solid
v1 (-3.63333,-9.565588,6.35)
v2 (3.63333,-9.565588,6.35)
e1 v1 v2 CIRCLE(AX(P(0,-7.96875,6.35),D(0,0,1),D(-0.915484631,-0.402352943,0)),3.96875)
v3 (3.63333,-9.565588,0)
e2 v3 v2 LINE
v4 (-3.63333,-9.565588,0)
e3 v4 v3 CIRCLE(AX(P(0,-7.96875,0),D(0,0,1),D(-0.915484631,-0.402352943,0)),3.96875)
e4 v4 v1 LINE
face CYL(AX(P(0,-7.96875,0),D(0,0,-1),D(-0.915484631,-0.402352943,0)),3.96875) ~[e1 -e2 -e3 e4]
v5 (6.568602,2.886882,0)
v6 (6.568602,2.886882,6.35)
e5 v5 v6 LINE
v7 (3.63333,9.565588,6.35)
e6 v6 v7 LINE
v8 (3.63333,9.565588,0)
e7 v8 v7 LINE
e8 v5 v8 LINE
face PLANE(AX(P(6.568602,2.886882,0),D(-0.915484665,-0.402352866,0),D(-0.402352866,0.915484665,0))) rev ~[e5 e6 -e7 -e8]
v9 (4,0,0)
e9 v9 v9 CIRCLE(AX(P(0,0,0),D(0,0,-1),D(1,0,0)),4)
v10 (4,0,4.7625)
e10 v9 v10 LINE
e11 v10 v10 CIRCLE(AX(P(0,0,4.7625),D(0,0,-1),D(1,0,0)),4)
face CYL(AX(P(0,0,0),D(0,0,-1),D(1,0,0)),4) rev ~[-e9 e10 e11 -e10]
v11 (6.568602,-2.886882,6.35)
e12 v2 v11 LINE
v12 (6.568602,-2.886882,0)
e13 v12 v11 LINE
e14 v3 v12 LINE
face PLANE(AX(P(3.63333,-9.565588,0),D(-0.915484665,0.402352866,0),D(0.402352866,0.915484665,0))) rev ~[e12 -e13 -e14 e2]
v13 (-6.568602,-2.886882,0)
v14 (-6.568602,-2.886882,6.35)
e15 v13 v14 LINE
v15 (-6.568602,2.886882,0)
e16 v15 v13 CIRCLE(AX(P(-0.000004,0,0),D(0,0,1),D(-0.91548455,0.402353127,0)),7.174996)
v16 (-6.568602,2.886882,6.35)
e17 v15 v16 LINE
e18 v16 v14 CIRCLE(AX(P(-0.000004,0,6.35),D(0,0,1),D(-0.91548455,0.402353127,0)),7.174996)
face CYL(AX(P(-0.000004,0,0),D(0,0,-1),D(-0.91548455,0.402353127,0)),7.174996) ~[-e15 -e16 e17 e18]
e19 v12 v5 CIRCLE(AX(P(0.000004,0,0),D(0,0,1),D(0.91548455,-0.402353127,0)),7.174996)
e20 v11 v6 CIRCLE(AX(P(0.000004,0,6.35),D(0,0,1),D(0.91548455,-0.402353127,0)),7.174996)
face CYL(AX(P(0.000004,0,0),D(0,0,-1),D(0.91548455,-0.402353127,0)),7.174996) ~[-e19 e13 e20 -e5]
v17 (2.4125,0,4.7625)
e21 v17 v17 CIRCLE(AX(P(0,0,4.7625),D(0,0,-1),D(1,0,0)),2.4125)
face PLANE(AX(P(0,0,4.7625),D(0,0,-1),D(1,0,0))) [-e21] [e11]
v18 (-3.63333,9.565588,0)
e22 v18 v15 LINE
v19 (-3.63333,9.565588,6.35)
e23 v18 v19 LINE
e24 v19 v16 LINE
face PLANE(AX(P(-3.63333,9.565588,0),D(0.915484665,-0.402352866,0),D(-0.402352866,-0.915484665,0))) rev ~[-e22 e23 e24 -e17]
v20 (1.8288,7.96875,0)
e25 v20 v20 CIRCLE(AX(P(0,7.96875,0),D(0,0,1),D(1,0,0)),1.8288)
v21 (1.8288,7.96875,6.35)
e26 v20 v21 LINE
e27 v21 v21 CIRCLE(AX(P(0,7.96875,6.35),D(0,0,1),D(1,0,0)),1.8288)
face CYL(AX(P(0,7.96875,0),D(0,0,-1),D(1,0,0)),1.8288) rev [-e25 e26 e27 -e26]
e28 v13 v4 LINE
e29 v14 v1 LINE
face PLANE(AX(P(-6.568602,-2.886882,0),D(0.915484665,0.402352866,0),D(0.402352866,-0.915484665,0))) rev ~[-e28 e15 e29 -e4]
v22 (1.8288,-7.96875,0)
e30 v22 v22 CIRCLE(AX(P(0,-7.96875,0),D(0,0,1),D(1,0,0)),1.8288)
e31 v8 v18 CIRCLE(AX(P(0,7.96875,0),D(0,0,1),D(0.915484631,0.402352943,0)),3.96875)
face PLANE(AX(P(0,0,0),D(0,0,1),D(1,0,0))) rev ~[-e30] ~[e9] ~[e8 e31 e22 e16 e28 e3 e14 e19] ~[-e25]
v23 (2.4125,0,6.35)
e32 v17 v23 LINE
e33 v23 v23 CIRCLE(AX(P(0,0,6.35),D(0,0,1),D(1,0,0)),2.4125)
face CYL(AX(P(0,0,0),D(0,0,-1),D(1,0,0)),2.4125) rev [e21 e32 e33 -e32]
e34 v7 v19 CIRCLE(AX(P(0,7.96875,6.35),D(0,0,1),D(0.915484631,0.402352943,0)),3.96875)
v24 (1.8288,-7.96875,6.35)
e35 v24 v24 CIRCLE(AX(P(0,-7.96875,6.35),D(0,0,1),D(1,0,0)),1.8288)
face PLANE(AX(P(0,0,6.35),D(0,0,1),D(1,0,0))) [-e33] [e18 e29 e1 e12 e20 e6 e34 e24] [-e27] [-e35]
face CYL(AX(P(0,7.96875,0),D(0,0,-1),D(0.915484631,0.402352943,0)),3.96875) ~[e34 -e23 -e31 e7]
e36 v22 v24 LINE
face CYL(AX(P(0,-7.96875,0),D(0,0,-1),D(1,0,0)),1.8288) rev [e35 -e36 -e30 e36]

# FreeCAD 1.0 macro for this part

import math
import FreeCAD as App
import Part
import Sketcher
from FreeCAD import Vector
Q = App.Units.Quantity

doc = App.newDocument("Part")
params = doc.addObject("Spreadsheet::Sheet", "Params")
for row, (alias, value) in enumerate([
    ("sketch1_diameter", "0.144 in"),
    ("sketch1_radius", "0.15625 in"),
    ("pad1_length", "0.25 in"),
    ("pocket1_length", "0.1875 in"),
], start=1):
    params.set(f"A{row}", alias)
    params.set(f"B{row}", "=" + value)
    params.setAlias(f"B{row}", alias)

body = doc.addObject("PartDesign::Body", "Body")

# Sketch on XY plane
sketch1 = body.newObject("Sketcher::SketchObject", "Sketch")
sketch1.AttachmentSupport = (doc.getObject("XY_Plane"), [""])
sketch1.MapMode = "FlatFace"
sketch1.addGeometry(Part.LineSegment(Vector(6.6, 2.9, 0), Vector(3.6, 9.6, 0)), False)
sketch1.addGeometry(Part.ArcOfCircle(Part.Circle(Vector(0, 8, 0), Vector(0, 0, 1), 4), math.radians(24), math.radians(156)), False)
sketch1.addGeometry(Part.LineSegment(Vector(-3.6, 9.6, 0), Vector(-6.6, 2.9, 0)), False)
sketch1.addGeometry(Part.ArcOfCircle(Part.Circle(Vector(0, 0, 0), Vector(0, 0, 1), 7.2), math.radians(156), math.radians(204)), False)
sketch1.addGeometry(Part.LineSegment(Vector(-6.6, -2.9, 0), Vector(-3.6, -9.6, 0)), False)
sketch1.addGeometry(Part.ArcOfCircle(Part.Circle(Vector(0, -8, 0), Vector(0, 0, 1), 4), math.radians(-156), math.radians(-24)), False)
sketch1.addGeometry(Part.LineSegment(Vector(3.6, -9.6, 0), Vector(6.6, -2.9, 0)), False)
sketch1.addGeometry(Part.ArcOfCircle(Part.Circle(Vector(0, 0, 0), Vector(0, 0, 1), 7.2), math.radians(-24), math.radians(24)), False)
sketch1.addGeometry(Part.Circle(Vector(0, -8, 0), Vector(0, 0, 1), 1.8), False)
sketch1.addGeometry(Part.Circle(Vector(0, 0, 0), Vector(0, 0, 1), 2.4), False)
sketch1.addGeometry(Part.Circle(Vector(0, 8, 0), Vector(0, 0, 1), 1.8), False)
sketch1.addConstraint(Sketcher.Constraint("Tangent", 0, 2, 1, 1))
sketch1.addConstraint(Sketcher.Constraint("Tangent", 1, 2, 2, 1))
sketch1.addConstraint(Sketcher.Constraint("Tangent", 2, 2, 3, 1))
sketch1.addConstraint(Sketcher.Constraint("Tangent", 3, 2, 4, 1))
sketch1.addConstraint(Sketcher.Constraint("Tangent", 4, 2, 5, 1))
sketch1.addConstraint(Sketcher.Constraint("Tangent", 5, 2, 6, 1))
sketch1.addConstraint(Sketcher.Constraint("Tangent", 6, 2, 7, 1))
sketch1.addConstraint(Sketcher.Constraint("Tangent", 7, 2, 0, 1))
sketch1.addConstraint(Sketcher.Constraint("Coincident", 3, 3, -1, 1))
sketch1.addConstraint(Sketcher.Constraint("Coincident", 7, 3, -1, 1))
sketch1.addConstraint(Sketcher.Constraint("Coincident", 9, 3, -1, 1))
sketch1.addConstraint(Sketcher.Constraint("Coincident", 8, 3, 5, 3))
sketch1.addConstraint(Sketcher.Constraint("Coincident", 10, 3, 1, 3))
sketch1.addConstraint(Sketcher.Constraint("Equal", 1, 5))
sketch1.addConstraint(Sketcher.Constraint("Equal", 3, 7))
sketch1.addConstraint(Sketcher.Constraint("Equal", 8, 10))
sketch1.addConstraint(Sketcher.Constraint("Symmetric", 1, 3, 5, 3, -1, 1))
sketch1.addConstraint(Sketcher.Constraint("PointOnObject", 1, 3, -2))
sketch1.addConstraint(Sketcher.Constraint("Diameter", 8, Q("0.144 in")))
sketch1.addConstraint(Sketcher.Constraint("Radius", 1, Q("0.15625 in")))
sketch1.addConstraint(Sketcher.Constraint("Diameter", 9, Q("4.825 mm")))
sketch1.addConstraint(Sketcher.Constraint("Radius", 3, Q("7.174996 mm")))
sketch1.addConstraint(Sketcher.Constraint("DistanceX", 3, 2, -1, 1, Q("6.568602 mm")))
sketch1.setExpression("Constraints[18]", "Params.sketch1_diameter")
sketch1.setExpression("Constraints[19]", "Params.sketch1_radius")
pad1 = body.newObject("PartDesign::Pad", "Pad")
pad1.Profile = sketch1
pad1.setExpression("Length", "Params.pad1_length")

# Sketch on XY plane
sketch2 = body.newObject("Sketcher::SketchObject", "Sketch001")
sketch2.AttachmentSupport = (doc.getObject("XY_Plane"), [""])
sketch2.MapMode = "FlatFace"
sketch2.addGeometry(Part.Circle(Vector(0, 0, 0), Vector(0, 0, 1), 4), False)
sketch2.addConstraint(Sketcher.Constraint("Coincident", 0, 3, -1, 1))
sketch2.addConstraint(Sketcher.Constraint("Diameter", 0, Q("8 mm")))
pocket1 = body.newObject("PartDesign::Pocket", "Pocket")
pocket1.Profile = sketch2
pocket1.setExpression("Length", "Params.pocket1_length")
pocket1.Reversed = True

doc.recompute()
